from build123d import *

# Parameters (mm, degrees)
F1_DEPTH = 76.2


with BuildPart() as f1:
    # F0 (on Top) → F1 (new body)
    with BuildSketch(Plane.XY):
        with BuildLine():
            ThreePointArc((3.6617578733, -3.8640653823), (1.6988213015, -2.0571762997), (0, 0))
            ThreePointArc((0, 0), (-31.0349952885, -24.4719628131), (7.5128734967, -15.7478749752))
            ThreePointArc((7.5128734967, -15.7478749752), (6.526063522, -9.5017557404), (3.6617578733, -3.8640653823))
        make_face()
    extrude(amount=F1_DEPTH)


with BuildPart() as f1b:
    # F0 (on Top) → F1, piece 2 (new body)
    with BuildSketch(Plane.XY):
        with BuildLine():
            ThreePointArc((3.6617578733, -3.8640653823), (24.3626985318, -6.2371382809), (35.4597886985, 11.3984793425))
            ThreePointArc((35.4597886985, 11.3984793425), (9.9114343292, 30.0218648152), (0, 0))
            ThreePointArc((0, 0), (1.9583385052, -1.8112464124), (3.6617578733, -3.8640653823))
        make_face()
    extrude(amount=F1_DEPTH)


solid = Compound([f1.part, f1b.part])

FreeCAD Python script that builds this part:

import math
import FreeCAD as App
import Part
import Sketcher

V = App.Vector
Q = App.Units.Quantity

doc = App.newDocument("Part")
params = doc.addObject("Spreadsheet::Sheet", "Params")
for row, (alias, value) in enumerate([
    ("pad1_length", "3 in"),
    ("pad2_length", "3 in"),
], start=1):
    params.set(f"A{row}", alias)
    params.set(f"B{row}", "=" + value)
    params.setAlias(f"B{row}", alias)

body = doc.addObject("PartDesign::Body", "Body")

# Sketch on XY plane
sketch1 = body.newObject("Sketcher::SketchObject", "Sketch")
sketch1.AttachmentSupport = (doc.getObject("XY_Plane"), [""])
sketch1.MapMode = "FlatFace"
sketch1.addGeometry(Part.ArcOfCircle(Part.Circle(V(15.897885, 11.398479, 0), V(0, 0, 1), 19.561904), math.radians(-144.360201), math.radians(-128.719482)), False)
sketch1.addGeometry(Part.ArcOfCircle(Part.Circle(V(-12.748271, -15.747875, 0), V(0, 0, 1), 20.261145), math.radians(51.009025), math.radians(360)), False)
sketch1.addGeometry(Part.ArcOfCircle(Part.Circle(V(-12.748271, -15.747875, 0), V(0, 0, 1), 20.261145), math.radians(0), math.radians(35.911292)), False)
sketch1.addConstraint(Sketcher.Constraint("Coincident", 0, 1, 1, 1))
sketch1.addConstraint(Sketcher.Constraint("Tangent", 1, 2, 2, 1))
sketch1.addConstraint(Sketcher.Constraint("Coincident", 2, 2, 0, 2))
sketch1.addConstraint(Sketcher.Constraint("Coincident", 0, 1, -1, 1))
sketch1.addConstraint(Sketcher.Constraint("Equal", 1, 2))
sketch1.addConstraint(Sketcher.Constraint("Horizontal", 2, 3, 1, 2))
sketch1.addConstraint(Sketcher.Constraint("Radius", 0, Q("19.561904 mm")))
sketch1.addConstraint(Sketcher.Constraint("Radius", 1, Q("20.261145 mm")))
sketch1.addConstraint(Sketcher.Constraint("DistanceY", -1, 1, 0, 3, Q("11.398479 mm")))
sketch1.addConstraint(Sketcher.Constraint("DistanceX", 1, 3, -1, 1, Q("12.748271 mm")))
pad1 = body.newObject("PartDesign::Pad", "Pad")
pad1.Profile = sketch1
pad1.setExpression("Length", "Params.pad1_length")
body2 = doc.addObject("PartDesign::Body", "Body001")

# Sketch on XY plane
sketch2 = body2.newObject("Sketcher::SketchObject", "Sketch001")
sketch2.AttachmentSupport = (doc.getObject("XY_Plane001"), [""])
sketch2.MapMode = "FlatFace"
sketch2.addGeometry(Part.ArcOfCircle(Part.Circle(V(15.897885, 11.398479, 0), V(0, 0, 1), 19.561904), math.radians(-128.719482), math.radians(0)), False)
sketch2.addGeometry(Part.ArcOfCircle(Part.Circle(V(15.897885, 11.398479, 0), V(0, 0, 1), 19.561904), math.radians(0), math.radians(215.639799)), False)
sketch2.addGeometry(Part.ArcOfCircle(Part.Circle(V(-12.748271, -15.747875, 0), V(0, 0, 1), 20.261145), math.radians(35.911292), math.radians(51.009025)), False)
sketch2.addConstraint(Sketcher.Constraint("Tangent", 0, 2, 1, 1))
sketch2.addConstraint(Sketcher.Constraint("Coincident", 1, 2, 2, 2))
sketch2.addConstraint(Sketcher.Constraint("Coincident", 2, 1, 0, 1))
sketch2.addConstraint(Sketcher.Constraint("Coincident", 1, 2, -1, 1))
sketch2.addConstraint(Sketcher.Constraint("Equal", 0, 1))
sketch2.addConstraint(Sketcher.Constraint("Horizontal", 1, 3, 0, 2))
sketch2.addConstraint(Sketcher.Constraint("Radius", 0, Q("19.561904 mm")))
sketch2.addConstraint(Sketcher.Constraint("Radius", 2, Q("20.261145 mm")))
sketch2.addConstraint(Sketcher.Constraint("DistanceY", -1, 1, 0, 3, Q("11.398479 mm")))
sketch2.addConstraint(Sketcher.Constraint("DistanceX", 2, 3, -1, 1, Q("12.748271 mm")))
pad2 = body2.newObject("PartDesign::Pad", "Pad001")
pad2.Profile = sketch2
pad2.setExpression("Length", "Params.pad2_length")

doc.recompute()
